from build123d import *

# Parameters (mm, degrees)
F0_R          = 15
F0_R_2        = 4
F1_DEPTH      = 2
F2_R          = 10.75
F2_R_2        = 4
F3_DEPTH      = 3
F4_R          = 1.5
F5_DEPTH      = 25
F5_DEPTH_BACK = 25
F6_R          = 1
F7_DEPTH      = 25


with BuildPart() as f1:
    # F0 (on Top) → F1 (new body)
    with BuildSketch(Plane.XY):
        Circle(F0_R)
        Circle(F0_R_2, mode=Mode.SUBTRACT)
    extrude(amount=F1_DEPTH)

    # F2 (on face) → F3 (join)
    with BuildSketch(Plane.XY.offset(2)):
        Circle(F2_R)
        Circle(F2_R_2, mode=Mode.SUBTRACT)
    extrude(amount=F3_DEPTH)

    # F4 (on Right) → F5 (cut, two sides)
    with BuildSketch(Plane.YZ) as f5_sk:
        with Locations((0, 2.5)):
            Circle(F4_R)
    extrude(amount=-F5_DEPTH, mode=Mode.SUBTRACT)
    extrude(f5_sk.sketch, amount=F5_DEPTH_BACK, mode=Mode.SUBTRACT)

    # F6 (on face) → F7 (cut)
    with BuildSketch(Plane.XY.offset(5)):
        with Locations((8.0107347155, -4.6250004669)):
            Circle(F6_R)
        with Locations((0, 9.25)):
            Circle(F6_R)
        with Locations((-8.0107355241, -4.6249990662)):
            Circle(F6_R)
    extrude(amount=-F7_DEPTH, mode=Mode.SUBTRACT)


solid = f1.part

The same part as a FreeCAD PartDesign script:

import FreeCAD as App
import Part
import Sketcher
Q = App.Units.Quantity

doc = App.newDocument("Part")
body = doc.addObject("PartDesign::Body", "Body")

# Sketch on XY plane
sketch1 = body.newObject("Sketcher::SketchObject", "Sketch")
sketch1.AttachmentSupport = (doc.getObject("XY_Plane"), [""])
sketch1.MapMode = "FlatFace"
sketch1.addGeometry(Part.Circle(App.Vector(0, 0, 0), App.Vector(0, 0, 1), 15), False)
sketch1.addGeometry(Part.Circle(App.Vector(0, 0, 0), App.Vector(0, 0, 1), 4), False)
sketch1.addConstraint(Sketcher.Constraint("Coincident", 0, 3, -1, 1))
sketch1.addConstraint(Sketcher.Constraint("Coincident", 1, 3, -1, 1))
sketch1.addConstraint(Sketcher.Constraint("Diameter", 0, Q("30 mm")))
sketch1.addConstraint(Sketcher.Constraint("Diameter", 1, Q("8 mm")))
pad1 = body.newObject("PartDesign::Pad", "Pad")
pad1.Profile = sketch1
pad1.Length = 2

# Sketch on XY plane
sketch2 = body.newObject("Sketcher::SketchObject", "Sketch001")
sketch2.AttachmentSupport = (doc.getObject("XY_Plane"), [""])
sketch2.MapMode = "FlatFace"
sketch2.AttachmentOffset = App.Placement(App.Vector(0, 0, 2), App.Rotation())
sketch2.addGeometry(Part.Circle(App.Vector(0, 0, 0), App.Vector(0, 0, 1), 10.8), False)
sketch2.addGeometry(Part.Circle(App.Vector(0, 0, 0), App.Vector(0, 0, 1), 4), False)
sketch2.addConstraint(Sketcher.Constraint("Coincident", 0, 3, -1, 1))
sketch2.addConstraint(Sketcher.Constraint("Coincident", 1, 3, -1, 1))
sketch2.addConstraint(Sketcher.Constraint("Diameter", 1, Q("8 mm")))
sketch2.addConstraint(Sketcher.Constraint("Diameter", 0, Q("21.5 mm")))
pad2 = body.newObject("PartDesign::Pad", "Pad001")
pad2.Profile = sketch2
pad2.Length = 3

# Sketch on YZ plane
sketch3 = body.newObject("Sketcher::SketchObject", "Sketch002")
sketch3.AttachmentSupport = (doc.getObject("YZ_Plane"), [""])
sketch3.MapMode = "FlatFace"
sketch3.addGeometry(Part.Circle(App.Vector(0, 2.5, 0), App.Vector(0, 0, 1), 1.5), False)
sketch3.addConstraint(Sketcher.Constraint("PointOnObject", 0, 3, -2))
sketch3.addConstraint(Sketcher.Constraint("Diameter", 0, Q("3 mm")))
sketch3.addConstraint(Sketcher.Constraint("DistanceY", -1, 1, 0, 3, Q("2.5 mm")))
pocket1 = body.newObject("PartDesign::Pocket", "Pocket")
pocket1.Profile = sketch3
pocket1.Type = "ThroughAll"
pocket1.Midplane = True

# Sketch on XY plane
sketch4 = body.newObject("Sketcher::SketchObject", "Sketch003")
sketch4.AttachmentSupport = (doc.getObject("XY_Plane"), [""])
sketch4.MapMode = "FlatFace"
sketch4.AttachmentOffset = App.Placement(App.Vector(0, 0, 5), App.Rotation())
sketch4.addGeometry(Part.Circle(App.Vector(8, -4.6, 0), App.Vector(0, 0, 1), 1), False)
sketch4.addGeometry(Part.Circle(App.Vector(0, 9.2, 0), App.Vector(0, 0, 1), 1), False)
sketch4.addGeometry(Part.Circle(App.Vector(-8, -4.6, 0), App.Vector(0, 0, 1), 1), False)
sketch4.addConstraint(Sketcher.Constraint("Equal", 0, 1))
sketch4.addConstraint(Sketcher.Constraint("Equal", 1, 2))
sketch4.addConstraint(Sketcher.Constraint("Symmetric", 0, 3, 2, 3, -2))
sketch4.addConstraint(Sketcher.Constraint("PointOnObject", 1, 3, -2))
sketch4.addConstraint(Sketcher.Constraint("Diameter", 0, Q("2 mm")))
sketch4.addConstraint(Sketcher.Constraint("DistanceY", -1, 1, 1, 3, Q("9.25 mm")))
sketch4.addConstraint(Sketcher.Constraint("DistanceY", 0, 3, -1, 1, Q("4.625 mm")))
sketch4.addConstraint(Sketcher.Constraint("DistanceX", 2, 3, 0, 3, Q("16.02147 mm")))
pocket2 = body.newObject("PartDesign::Pocket", "Pocket001")
pocket2.Profile = sketch4
pocket2.Length = 25

doc.recompute()
